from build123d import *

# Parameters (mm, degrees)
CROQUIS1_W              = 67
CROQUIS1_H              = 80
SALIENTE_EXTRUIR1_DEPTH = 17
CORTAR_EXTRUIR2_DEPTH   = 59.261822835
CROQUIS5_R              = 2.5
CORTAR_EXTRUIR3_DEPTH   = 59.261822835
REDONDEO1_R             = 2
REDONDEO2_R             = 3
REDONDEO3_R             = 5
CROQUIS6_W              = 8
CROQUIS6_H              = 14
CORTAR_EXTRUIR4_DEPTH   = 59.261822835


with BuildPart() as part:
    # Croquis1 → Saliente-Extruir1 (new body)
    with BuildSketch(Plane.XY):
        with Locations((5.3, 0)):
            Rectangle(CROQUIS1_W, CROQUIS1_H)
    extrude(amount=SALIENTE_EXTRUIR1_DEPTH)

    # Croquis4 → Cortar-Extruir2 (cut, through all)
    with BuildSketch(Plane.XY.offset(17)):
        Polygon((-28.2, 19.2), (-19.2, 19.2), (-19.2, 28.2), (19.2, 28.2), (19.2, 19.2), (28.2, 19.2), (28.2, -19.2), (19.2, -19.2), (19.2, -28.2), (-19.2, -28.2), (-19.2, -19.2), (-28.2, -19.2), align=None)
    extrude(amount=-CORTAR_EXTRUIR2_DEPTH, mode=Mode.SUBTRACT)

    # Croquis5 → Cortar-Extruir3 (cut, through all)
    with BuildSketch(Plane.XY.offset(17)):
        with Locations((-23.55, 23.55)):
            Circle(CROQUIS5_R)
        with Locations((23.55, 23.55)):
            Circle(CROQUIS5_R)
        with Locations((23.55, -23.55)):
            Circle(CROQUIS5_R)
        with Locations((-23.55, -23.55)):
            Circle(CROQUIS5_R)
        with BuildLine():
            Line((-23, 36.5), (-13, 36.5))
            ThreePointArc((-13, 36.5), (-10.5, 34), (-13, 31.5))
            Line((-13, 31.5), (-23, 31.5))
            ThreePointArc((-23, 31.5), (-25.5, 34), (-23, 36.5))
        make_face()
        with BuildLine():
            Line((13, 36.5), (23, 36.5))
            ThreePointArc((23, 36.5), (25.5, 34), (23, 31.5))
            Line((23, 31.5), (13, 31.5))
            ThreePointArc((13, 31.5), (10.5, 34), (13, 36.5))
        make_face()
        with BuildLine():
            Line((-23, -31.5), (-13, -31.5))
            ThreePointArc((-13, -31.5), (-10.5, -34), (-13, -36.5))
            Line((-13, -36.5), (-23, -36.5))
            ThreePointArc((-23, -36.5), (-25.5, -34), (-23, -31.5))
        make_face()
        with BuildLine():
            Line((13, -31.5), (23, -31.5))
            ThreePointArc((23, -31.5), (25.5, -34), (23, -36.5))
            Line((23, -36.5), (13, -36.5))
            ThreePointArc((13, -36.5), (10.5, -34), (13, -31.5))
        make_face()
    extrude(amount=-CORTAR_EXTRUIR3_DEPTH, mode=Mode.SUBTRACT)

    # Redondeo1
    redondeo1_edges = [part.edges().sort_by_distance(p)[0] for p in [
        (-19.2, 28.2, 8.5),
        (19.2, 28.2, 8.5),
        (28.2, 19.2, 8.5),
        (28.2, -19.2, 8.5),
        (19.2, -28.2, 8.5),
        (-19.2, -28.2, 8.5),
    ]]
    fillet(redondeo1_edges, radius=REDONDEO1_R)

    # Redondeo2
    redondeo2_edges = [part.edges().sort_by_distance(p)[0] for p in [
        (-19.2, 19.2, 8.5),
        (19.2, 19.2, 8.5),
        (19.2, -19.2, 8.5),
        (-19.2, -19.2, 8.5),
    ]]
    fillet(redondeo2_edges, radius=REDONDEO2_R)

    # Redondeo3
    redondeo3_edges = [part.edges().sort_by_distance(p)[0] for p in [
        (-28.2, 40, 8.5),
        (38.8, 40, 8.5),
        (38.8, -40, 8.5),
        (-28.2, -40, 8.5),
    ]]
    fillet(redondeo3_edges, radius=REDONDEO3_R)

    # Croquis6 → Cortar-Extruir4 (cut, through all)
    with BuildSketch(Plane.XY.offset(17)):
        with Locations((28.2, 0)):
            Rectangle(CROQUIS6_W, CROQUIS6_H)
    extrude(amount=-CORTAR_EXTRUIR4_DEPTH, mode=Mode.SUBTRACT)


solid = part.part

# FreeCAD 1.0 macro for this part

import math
import FreeCAD as App
import Part
import Sketcher
Q = App.Units.Quantity


def edges_at(feature, points):
    """Names of the edges that pass closest to the given points."""
    edges = feature.Shape.Edges
    near = lambda p: min(range(len(edges)), key=lambda i: edges[i].distToShape(Part.Vertex(*p))[0])
    return sorted({f"Edge{near(p) + 1}" for p in points})


def add_polygon(sketch, points):
    """Adds a closed chain of lines whose ends are joined by coincident constraints."""
    first, n = sketch.GeometryCount, len(points)
    for a, b in zip(points, points[1:] + points[:1]):
        sketch.addGeometry(Part.LineSegment(App.Vector(*a, 0), App.Vector(*b, 0)), False)
    for i in range(n):
        sketch.addConstraint(Sketcher.Constraint("Coincident", first + i, 2, first + (i + 1) % n, 1))

doc = App.newDocument("Part")
params = doc.addObject("Spreadsheet::Sheet", "Params")
for row, (alias, value) in enumerate([
    ("sketch1_width", "67 mm"),
    ("sketch1_height", "80 mm"),
    ("pad1_length", "17 mm"),
    ("sketch2_width", "9 mm"),
    ("sketch2_width2", "38.4 mm"),
    ("sketch3_diameter", "5 mm"),
    ("sketch3_width", "10 mm"),
    ("fillet_radius", "2 mm"),
    ("fillet2_radius", "3 mm"),
    ("fillet3_radius", "5 mm"),
    ("sketch4_width", "8 mm"),
    ("sketch4_height", "14 mm"),
], start=1):
    params.set(f"A{row}", alias)
    params.set(f"B{row}", "=" + value)
    params.setAlias(f"B{row}", alias)

body = doc.addObject("PartDesign::Body", "Body")

sketch1 = doc.addObject("Sketcher::SketchObject", "Sketch")
body.addObject(sketch1)
sketch1.AttachmentSupport = (doc.XY_Plane, [""])
sketch1.MapMode = "FlatFace"
add_polygon(sketch1, [(-28, 40), (-28, -40), (39, -40), (39, 40)])
sketch1.addConstraint(Sketcher.Constraint("Vertical", 0))
sketch1.addConstraint(Sketcher.Constraint("Horizontal", 1))
sketch1.addConstraint(Sketcher.Constraint("Vertical", 2))
sketch1.addConstraint(Sketcher.Constraint("Horizontal", 3))
sketch1.addConstraint(Sketcher.Constraint("DistanceX", 1, 1, 1, 2, Q("67 mm")))
sketch1.addConstraint(Sketcher.Constraint("DistanceY", 0, 2, 0, 1, Q("80 mm")))
sketch1.addConstraint(Sketcher.Constraint("DistanceY", 0, 2, -1, 1, Q("40 mm")))
sketch1.addConstraint(Sketcher.Constraint("DistanceX", 0, 2, -1, 1, Q("28.2 mm")))
sketch1.setExpression("Constraints[8]", "Params.sketch1_width")
sketch1.setExpression("Constraints[9]", "Params.sketch1_height")
pad1 = doc.addObject("PartDesign::Pad", "Pad")
body.addObject(pad1)
pad1.Profile = sketch1
pad1.setExpression("Length", "Params.pad1_length")

sketch2 = doc.addObject("Sketcher::SketchObject", "Sketch001")
body.addObject(sketch2)
sketch2.AttachmentSupport = (doc.XY_Plane, [""])
sketch2.MapMode = "FlatFace"
sketch2.AttachmentOffset = App.Placement(App.Vector(0, 0, 17), App.Rotation())
add_polygon(sketch2, [(-19, 19), (-28, 19), (-28, -19), (-19, -19), (-19, -28), (19, -28), (19, -19), (28, -19), (28, 19), (19, 19), (19, 28), (-19, 28)])
sketch2.addConstraint(Sketcher.Constraint("Horizontal", 0))
sketch2.addConstraint(Sketcher.Constraint("Vertical", 1))
sketch2.addConstraint(Sketcher.Constraint("Horizontal", 2))
sketch2.addConstraint(Sketcher.Constraint("Vertical", 3))
sketch2.addConstraint(Sketcher.Constraint("Horizontal", 4))
sketch2.addConstraint(Sketcher.Constraint("Vertical", 5))
sketch2.addConstraint(Sketcher.Constraint("Horizontal", 6))
sketch2.addConstraint(Sketcher.Constraint("Vertical", 7))
sketch2.addConstraint(Sketcher.Constraint("Horizontal", 8))
sketch2.addConstraint(Sketcher.Constraint("Vertical", 9))
sketch2.addConstraint(Sketcher.Constraint("Horizontal", 10))
sketch2.addConstraint(Sketcher.Constraint("Vertical", 11))
sketch2.addConstraint(Sketcher.Constraint("Symmetric", 0, 2, 6, 2, -1, 1))
sketch2.addConstraint(Sketcher.Constraint("Symmetric", 2, 2, 8, 2, -1, 1))
sketch2.addConstraint(Sketcher.Constraint("Symmetric", 4, 2, 10, 2, -1, 1))
sketch2.addConstraint(Sketcher.Constraint("Symmetric", 2, 2, 5, 2, -2))
sketch2.addConstraint(Sketcher.Constraint("Equal", 10, 1))
sketch2.addConstraint(Sketcher.Constraint("Equal", 8, 3))
sketch2.addConstraint(Sketcher.Constraint("DistanceX", 0, 2, 0, 1, Q("9 mm")))
sketch2.addConstraint(Sketcher.Constraint("DistanceX", 4, 1, 4, 2, Q("38.4 mm")))
sketch2.setExpression("Constraints[30]", "Params.sketch2_width")
sketch2.setExpression("Constraints[31]", "Params.sketch2_width2")
pocket1 = doc.addObject("PartDesign::Pocket", "Pocket")
body.addObject(pocket1)
pocket1.Profile = sketch2
pocket1.Type = "ThroughAll"

sketch3 = doc.addObject("Sketcher::SketchObject", "Sketch002")
body.addObject(sketch3)
sketch3.AttachmentSupport = (doc.XY_Plane, [""])
sketch3.MapMode = "FlatFace"
sketch3.AttachmentOffset = App.Placement(App.Vector(0, 0, 17), App.Rotation())
sketch3.addGeometry(Part.Circle(App.Vector(-23.6, 23.6, 0), App.Vector(0, 0, 1), 2.5), False)
sketch3.addGeometry(Part.Circle(App.Vector(23.6, 23.6, 0), App.Vector(0, 0, 1), 2.5), False)
sketch3.addGeometry(Part.Circle(App.Vector(23.6, -23.6, 0), App.Vector(0, 0, 1), 2.5), False)
sketch3.addGeometry(Part.Circle(App.Vector(-23.6, -23.6, 0), App.Vector(0, 0, 1), 2.5), False)
sketch3.addGeometry(Part.LineSegment(App.Vector(-13, 36.5, 0), App.Vector(-23, 36.5, 0)), False)
sketch3.addGeometry(Part.ArcOfCircle(Part.Circle(App.Vector(-23, 34, 0), App.Vector(0, 0, 1), 2.5), math.radians(90), math.radians(270)), False)
sketch3.addGeometry(Part.LineSegment(App.Vector(-23, 31.5, 0), App.Vector(-13, 31.5, 0)), False)
sketch3.addGeometry(Part.ArcOfCircle(Part.Circle(App.Vector(-13, 34, 0), App.Vector(0, 0, 1), 2.5), math.radians(-90), math.radians(90)), False)
sketch3.addGeometry(Part.LineSegment(App.Vector(23, 36.5, 0), App.Vector(13, 36.5, 0)), False)
sketch3.addGeometry(Part.ArcOfCircle(Part.Circle(App.Vector(13, 34, 0), App.Vector(0, 0, 1), 2.5), math.radians(90), math.radians(270)), False)
sketch3.addGeometry(Part.LineSegment(App.Vector(13, 31.5, 0), App.Vector(23, 31.5, 0)), False)
sketch3.addGeometry(Part.ArcOfCircle(Part.Circle(App.Vector(23, 34, 0), App.Vector(0, 0, 1), 2.5), math.radians(-90), math.radians(90)), False)
sketch3.addGeometry(Part.LineSegment(App.Vector(-13, -31.5, 0), App.Vector(-23, -31.5, 0)), False)
sketch3.addGeometry(Part.ArcOfCircle(Part.Circle(App.Vector(-23, -34, 0), App.Vector(0, 0, 1), 2.5), math.radians(90), math.radians(270)), False)
sketch3.addGeometry(Part.LineSegment(App.Vector(-23, -36.5, 0), App.Vector(-13, -36.5, 0)), False)
sketch3.addGeometry(Part.ArcOfCircle(Part.Circle(App.Vector(-13, -34, 0), App.Vector(0, 0, 1), 2.5), math.radians(-90), math.radians(90)), False)
sketch3.addGeometry(Part.LineSegment(App.Vector(23, -31.5, 0), App.Vector(13, -31.5, 0)), False)
sketch3.addGeometry(Part.ArcOfCircle(Part.Circle(App.Vector(13, -34, 0), App.Vector(0, 0, 1), 2.5), math.radians(90), math.radians(270)), False)
sketch3.addGeometry(Part.LineSegment(App.Vector(13, -36.5, 0), App.Vector(23, -36.5, 0)), False)
sketch3.addGeometry(Part.ArcOfCircle(Part.Circle(App.Vector(23, -34, 0), App.Vector(0, 0, 1), 2.5), math.radians(-90), math.radians(90)), False)
sketch3.addConstraint(Sketcher.Constraint("Tangent", 4, 2, 5, 1))
sketch3.addConstraint(Sketcher.Constraint("Tangent", 5, 2, 6, 1))
sketch3.addConstraint(Sketcher.Constraint("Tangent", 6, 2, 7, 1))
sketch3.addConstraint(Sketcher.Constraint("Tangent", 7, 2, 4, 1))
sketch3.addConstraint(Sketcher.Constraint("Tangent", 8, 2, 9, 1))
sketch3.addConstraint(Sketcher.Constraint("Tangent", 9, 2, 10, 1))
sketch3.addConstraint(Sketcher.Constraint("Tangent", 10, 2, 11, 1))
sketch3.addConstraint(Sketcher.Constraint("Tangent", 11, 2, 8, 1))
sketch3.addConstraint(Sketcher.Constraint("Tangent", 12, 2, 13, 1))
sketch3.addConstraint(Sketcher.Constraint("Tangent", 13, 2, 14, 1))
sketch3.addConstraint(Sketcher.Constraint("Tangent", 14, 2, 15, 1))
sketch3.addConstraint(Sketcher.Constraint("Tangent", 15, 2, 12, 1))
sketch3.addConstraint(Sketcher.Constraint("Tangent", 16, 2, 17, 1))
sketch3.addConstraint(Sketcher.Constraint("Tangent", 17, 2, 18, 1))
sketch3.addConstraint(Sketcher.Constraint("Tangent", 18, 2, 19, 1))
sketch3.addConstraint(Sketcher.Constraint("Tangent", 19, 2, 16, 1))
sketch3.addConstraint(Sketcher.Constraint("Horizontal", 4))
sketch3.addConstraint(Sketcher.Constraint("Horizontal", 6))
sketch3.addConstraint(Sketcher.Constraint("Horizontal", 8))
sketch3.addConstraint(Sketcher.Constraint("Horizontal", 10))
sketch3.addConstraint(Sketcher.Constraint("Horizontal", 12))
sketch3.addConstraint(Sketcher.Constraint("Horizontal", 14))
sketch3.addConstraint(Sketcher.Constraint("Horizontal", 16))
sketch3.addConstraint(Sketcher.Constraint("Horizontal", 18))
sketch3.addConstraint(Sketcher.Constraint("Equal", 0, 1))
sketch3.addConstraint(Sketcher.Constraint("Equal", 1, 2))
sketch3.addConstraint(Sketcher.Constraint("Equal", 2, 3))
sketch3.addConstraint(Sketcher.Constraint("Equal", 3, 5))
sketch3.addConstraint(Sketcher.Constraint("Equal", 7, 9))
sketch3.addConstraint(Sketcher.Constraint("Equal", 11, 13))
sketch3.addConstraint(Sketcher.Constraint("Equal", 15, 17))
sketch3.addConstraint(Sketcher.Constraint("Symmetric", 0, 3, 2, 3, -1, 1))
sketch3.addConstraint(Sketcher.Constraint("Symmetric", 1, 3, 3, 3, -1, 1))
sketch3.addConstraint(Sketcher.Constraint("Symmetric", 11, 3, 13, 3, -1, 1))
sketch3.addConstraint(Sketcher.Constraint("Symmetric", 7, 3, 17, 3, -1, 1))
sketch3.addConstraint(Sketcher.Constraint("Symmetric", 0, 3, 1, 3, -2))
sketch3.addConstraint(Sketcher.Constraint("Symmetric", 7, 3, 9, 3, -2))
sketch3.addConstraint(Sketcher.Constraint("Vertical", 5, 3, 13, 3))
sketch3.addConstraint(Sketcher.Constraint("Vertical", 7, 3, 15, 3))
sketch3.addConstraint(Sketcher.Constraint("Vertical", 11, 3, 19, 3))
sketch3.addConstraint(Sketcher.Constraint("Diameter", 0, Q("5 mm")))
sketch3.addConstraint(Sketcher.Constraint("DistanceX", 4, 2, 4, 1, Q("10 mm")))
sketch3.addConstraint(Sketcher.Constraint("DistanceX", 5, 3, -1, 1, Q("23 mm")))
sketch3.addConstraint(Sketcher.Constraint("DistanceY", -1, 1, 5, 3, Q("34 mm")))
sketch3.addConstraint(Sketcher.Constraint("DistanceX", 0, 3, 1, 3, Q("47.1 mm")))
sketch3.addConstraint(Sketcher.Constraint("DistanceY", 2, 3, 1, 3, Q("47.1 mm")))
sketch3.setExpression("Constraints[40]", "Params.sketch3_diameter")
sketch3.setExpression("Constraints[41]", "Params.sketch3_width")
pocket2 = doc.addObject("PartDesign::Pocket", "Pocket001")
body.addObject(pocket2)
pocket2.Profile = sketch3
pocket2.Type = "ThroughAll"
doc.recompute()

fillet = doc.addObject("PartDesign::Fillet", "Fillet")
body.addObject(fillet)
fillet.Base = (pocket2, edges_at(pocket2, [
    (-19.2, 28.2, 8.5),
    (19.2, 28.2, 8.5),
    (28.2, 19.2, 8.5),
    (28.2, -19.2, 8.5),
    (19.2, -28.2, 8.5),
    (-19.2, -28.2, 8.5),
]))
fillet.setExpression("Radius", "Params.fillet_radius")
doc.recompute()

fillet2 = doc.addObject("PartDesign::Fillet", "Fillet001")
body.addObject(fillet2)
fillet2.Base = (fillet, edges_at(fillet, [
    (-19.2, 19.2, 8.5),
    (19.2, 19.2, 8.5),
    (19.2, -19.2, 8.5),
    (-19.2, -19.2, 8.5),
]))
fillet2.setExpression("Radius", "Params.fillet2_radius")
doc.recompute()

fillet3 = doc.addObject("PartDesign::Fillet", "Fillet002")
body.addObject(fillet3)
fillet3.Base = (fillet2, edges_at(fillet2, [
    (-28.2, 40, 8.5),
    (38.8, 40, 8.5),
    (38.8, -40, 8.5),
    (-28.2, -40, 8.5),
]))
fillet3.setExpression("Radius", "Params.fillet3_radius")

sketch4 = doc.addObject("Sketcher::SketchObject", "Sketch003")
body.addObject(sketch4)
sketch4.AttachmentSupport = (doc.XY_Plane, [""])
sketch4.MapMode = "FlatFace"
sketch4.AttachmentOffset = App.Placement(App.Vector(0, 0, 17), App.Rotation())
add_polygon(sketch4, [(24, 7), (24, -7), (32, -7), (32, 7)])
sketch4.addConstraint(Sketcher.Constraint("Vertical", 0))
sketch4.addConstraint(Sketcher.Constraint("Horizontal", 1))
sketch4.addConstraint(Sketcher.Constraint("Vertical", 2))
sketch4.addConstraint(Sketcher.Constraint("Horizontal", 3))
sketch4.addConstraint(Sketcher.Constraint("DistanceX", 1, 1, 1, 2, Q("8 mm")))
sketch4.addConstraint(Sketcher.Constraint("DistanceY", 0, 2, 0, 1, Q("14 mm")))
sketch4.addConstraint(Sketcher.Constraint("DistanceY", 0, 2, -1, 1, Q("7 mm")))
sketch4.addConstraint(Sketcher.Constraint("DistanceX", -1, 1, 0, 2, Q("24.2 mm")))
sketch4.setExpression("Constraints[8]", "Params.sketch4_width")
sketch4.setExpression("Constraints[9]", "Params.sketch4_height")
pocket3 = doc.addObject("PartDesign::Pocket", "Pocket002")
body.addObject(pocket3)
pocket3.Profile = sketch4
pocket3.Type = "ThroughAll"

doc.recompute()
